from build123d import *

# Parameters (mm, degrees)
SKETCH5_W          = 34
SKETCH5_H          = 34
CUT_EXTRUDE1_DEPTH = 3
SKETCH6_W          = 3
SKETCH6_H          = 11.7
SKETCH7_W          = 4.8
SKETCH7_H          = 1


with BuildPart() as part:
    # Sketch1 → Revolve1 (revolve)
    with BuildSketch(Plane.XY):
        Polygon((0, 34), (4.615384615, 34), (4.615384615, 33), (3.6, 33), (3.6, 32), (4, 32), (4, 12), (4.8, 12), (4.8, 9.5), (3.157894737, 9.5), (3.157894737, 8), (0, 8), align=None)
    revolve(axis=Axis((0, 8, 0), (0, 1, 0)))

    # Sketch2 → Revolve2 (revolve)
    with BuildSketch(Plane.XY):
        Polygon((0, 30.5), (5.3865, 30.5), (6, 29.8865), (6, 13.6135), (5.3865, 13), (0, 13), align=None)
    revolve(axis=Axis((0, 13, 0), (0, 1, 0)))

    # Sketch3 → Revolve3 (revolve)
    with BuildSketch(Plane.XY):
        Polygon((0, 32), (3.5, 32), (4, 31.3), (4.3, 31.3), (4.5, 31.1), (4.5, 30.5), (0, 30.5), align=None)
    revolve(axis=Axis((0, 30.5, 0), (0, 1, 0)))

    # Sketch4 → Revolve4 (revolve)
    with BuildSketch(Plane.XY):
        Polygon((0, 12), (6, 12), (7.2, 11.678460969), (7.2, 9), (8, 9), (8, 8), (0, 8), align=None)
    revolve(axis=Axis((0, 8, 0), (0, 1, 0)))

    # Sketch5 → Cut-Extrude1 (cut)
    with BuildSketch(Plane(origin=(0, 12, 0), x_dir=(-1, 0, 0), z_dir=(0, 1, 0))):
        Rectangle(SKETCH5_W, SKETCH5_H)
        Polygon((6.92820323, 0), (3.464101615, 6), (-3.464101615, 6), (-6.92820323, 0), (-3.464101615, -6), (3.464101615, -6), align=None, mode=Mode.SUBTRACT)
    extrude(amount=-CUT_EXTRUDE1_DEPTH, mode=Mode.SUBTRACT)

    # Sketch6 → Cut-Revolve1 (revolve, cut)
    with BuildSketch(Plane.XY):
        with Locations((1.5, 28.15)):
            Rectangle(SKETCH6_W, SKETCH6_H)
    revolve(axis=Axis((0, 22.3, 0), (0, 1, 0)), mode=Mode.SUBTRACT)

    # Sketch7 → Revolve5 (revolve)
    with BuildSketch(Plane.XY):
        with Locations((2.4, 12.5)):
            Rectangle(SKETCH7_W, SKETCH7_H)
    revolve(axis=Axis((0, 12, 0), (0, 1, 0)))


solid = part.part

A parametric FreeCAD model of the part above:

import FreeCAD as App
import Part
import Sketcher
from FreeCAD import Vector
Q = App.Units.Quantity


def add_polygon(sketch, points):
    """Adds a closed chain of lines whose ends are joined by coincident constraints."""
    first, n = sketch.GeometryCount, len(points)
    for a, b in zip(points, points[1:] + points[:1]):
        sketch.addGeometry(Part.LineSegment(App.Vector(*a, 0), App.Vector(*b, 0)), False)
    for i in range(n):
        sketch.addConstraint(Sketcher.Constraint("Coincident", first + i, 2, first + (i + 1) % n, 1))

doc = App.newDocument("Part")
params = doc.addObject("Spreadsheet::Sheet", "Params")
for row, (alias, value) in enumerate([
    ("sketch1_height", "26 mm"),
    ("sketch1_height2", "20 mm"),
    ("sketch1_height3", "1 mm"),
    ("sketch1_width", "0.8 mm"),
    ("sketch1_width2", "0.4 mm"),
    ("revolution_angle", "360 deg"),
    ("sketch2_height", "17.5 mm"),
    ("revolution2_angle", "360 deg"),
    ("sketch3_width", "3.5 mm"),
    ("sketch3_width2", "4.5 mm"),
    ("sketch3_width3", "0.3 mm"),
    ("sketch3_height", "1.5 mm"),
    ("sketch3_height2", "0.6 mm"),
    ("revolution3_angle", "360 deg"),
    ("sketch4_width", "6 mm"),
    ("sketch4_width2", "8 mm"),
    ("sketch4_height", "4 mm"),
    ("sketch4_height2", "1 mm"),
    ("sketch4_width3", "0.8 mm"),
    ("revolution4_angle", "360 deg"),
    ("sketch5_width", "34 mm"),
    ("pocket1_length", "3 mm"),
    ("sketch6_width", "3 mm"),
    ("sketch6_height", "11.7 mm"),
    ("groove_angle", "360 deg"),
    ("sketch7_height", "1 mm"),
    ("sketch7_width", "4.8 mm"),
    ("revolution5_angle", "360 deg"),
], start=1):
    params.set(f"A{row}", alias)
    params.set(f"B{row}", "=" + value)
    params.setAlias(f"B{row}", alias)

body = doc.addObject("PartDesign::Body", "Body")

# Sketch on XY plane
sketch1 = body.newObject("Sketcher::SketchObject", "Sketch")
sketch1.AttachmentSupport = (doc.getObject("XY_Plane"), [""])
sketch1.MapMode = "FlatFace"
add_polygon(sketch1, [(4.615385, 34), (0, 34), (0, 8), (3.157895, 8), (3.157895, 9.5), (4.8, 9.5), (4.8, 12), (4, 12), (4, 32), (3.6, 32), (3.6, 33), (4.615385, 33)])  # lines 0-11
sketch1.addConstraint([
    Sketcher.Constraint("Horizontal", 0),
    Sketcher.Constraint("Vertical", 1),
    Sketcher.Constraint("Horizontal", 2),
    Sketcher.Constraint("Vertical", 3),
    Sketcher.Constraint("Horizontal", 4),
    Sketcher.Constraint("Vertical", 5),
    Sketcher.Constraint("Horizontal", 6),
    Sketcher.Constraint("Vertical", 7),
    Sketcher.Constraint("Horizontal", 8),
    Sketcher.Constraint("Vertical", 9),
    Sketcher.Constraint("Horizontal", 10),
    Sketcher.Constraint("Vertical", 11),
    Sketcher.Constraint("PointOnObject", 0, 2, -2),
    Sketcher.Constraint("Equal", 9, 11),
    Sketcher.Constraint("DistanceY", 1, 2, 1, 1, 26.0),
    Sketcher.Constraint("DistanceY", 7, 1, 7, 2, 20.0),
    Sketcher.Constraint("DistanceY", 9, 1, 9, 2, 1.0),
    Sketcher.Constraint("DistanceX", 6, 2, 6, 1, 0.8),
    Sketcher.Constraint("DistanceX", 8, 2, 8, 1, 0.4),
    Sketcher.Constraint("DistanceY", 3, 1, 3, 2, 1.5),
    Sketcher.Constraint("DistanceY", -1, 1, 0, 2, 34.0),
    Sketcher.Constraint("DistanceX", -1, 1, 6, 2, 4.0),
    Sketcher.Constraint("DistanceX", 0, 2, 0, 1, 4.615385),
    Sketcher.Constraint("DistanceX", 2, 1, 2, 2, 3.157895),
])
sketch1.setExpression("Constraints[26]", "Params.sketch1_height")
sketch1.setExpression("Constraints[27]", "Params.sketch1_height2")
sketch1.setExpression("Constraints[28]", "Params.sketch1_height3")
sketch1.setExpression("Constraints[29]", "Params.sketch1_width")
sketch1.setExpression("Constraints[30]", "Params.sketch1_width2")
revolution = body.newObject("PartDesign::Revolution", "Revolution")
revolution.Profile = sketch1
revolution.ReferenceAxis = (sketch1, ["V_Axis"])
revolution.setExpression("Angle", "Params.revolution_angle")

# Sketch on XY plane
sketch2 = body.newObject("Sketcher::SketchObject", "Sketch001")
sketch2.AttachmentSupport = (doc.getObject("XY_Plane"), [""])
sketch2.MapMode = "FlatFace"
add_polygon(sketch2, [(5.3865, 30.5), (0, 30.5), (0, 13), (5.3865, 13), (6, 13.6135), (6, 29.8865)])  # lines 0-5
sketch2.addConstraint([
    Sketcher.Constraint("Horizontal", 0),
    Sketcher.Constraint("Vertical", 1),
    Sketcher.Constraint("Horizontal", 2),
    Sketcher.Constraint("Vertical", 4),
    Sketcher.Constraint("PointOnObject", 0, 2, -2),
    Sketcher.Constraint("Perpendicular", 3, 5),
    Sketcher.Constraint("Vertical", 2, 2, 5, 2),
    Sketcher.Constraint("Equal", 3, 5),
    Sketcher.Constraint("DistanceY", 1, 2, 1, 1, 17.5),
    Sketcher.Constraint("DistanceY", -1, 1, 1, 2, 13.0),
    Sketcher.Constraint("DistanceX", -1, 1, 3, 2, 6.0),
    Sketcher.Constraint("DistanceY", 4, 1, 4, 2, 16.273),
])
sketch2.setExpression("Constraints[14]", "Params.sketch2_height")
revolution2 = body.newObject("PartDesign::Revolution", "Revolution001")
revolution2.Profile = sketch2
revolution2.ReferenceAxis = (sketch2, ["V_Axis"])
revolution2.setExpression("Angle", "Params.revolution2_angle")

# Sketch on XY plane
sketch3 = body.newObject("Sketcher::SketchObject", "Sketch002")
sketch3.AttachmentSupport = (doc.getObject("XY_Plane"), [""])
sketch3.MapMode = "FlatFace"
add_polygon(sketch3, [(3.5, 32), (0, 32), (0, 30.5), (4.5, 30.5), (4.5, 31.1), (4.3, 31.3), (4, 31.3)])  # lines 0-6
sketch3.addConstraint([
    Sketcher.Constraint("Horizontal", 0),
    Sketcher.Constraint("Vertical", 1),
    Sketcher.Constraint("Horizontal", 2),
    Sketcher.Constraint("Vertical", 3),
    Sketcher.Constraint("Horizontal", 5),
    Sketcher.Constraint("PointOnObject", 0, 2, -2),
    Sketcher.Constraint("Angle", 4, Q("135 deg")),
    Sketcher.Constraint("DistanceX", 0, 2, 0, 1, 3.5),
    Sketcher.Constraint("DistanceX", 2, 1, 2, 2, 4.5),
    Sketcher.Constraint("DistanceX", 5, 2, 5, 1, 0.3),
    Sketcher.Constraint("DistanceY", 1, 2, 1, 1, 1.5),
    Sketcher.Constraint("DistanceY", 3, 1, 3, 2, 0.6),
    Sketcher.Constraint("DistanceY", -1, 1, 0, 2, 32.0),
    Sketcher.Constraint("DistanceX", -1, 1, 5, 2, 4.0),
])
sketch3.setExpression("Constraints[14]", "Params.sketch3_width")
sketch3.setExpression("Constraints[15]", "Params.sketch3_width2")
sketch3.setExpression("Constraints[16]", "Params.sketch3_width3")
sketch3.setExpression("Constraints[17]", "Params.sketch3_height")
sketch3.setExpression("Constraints[18]", "Params.sketch3_height2")
revolution3 = body.newObject("PartDesign::Revolution", "Revolution002")
revolution3.Profile = sketch3
revolution3.ReferenceAxis = (sketch3, ["V_Axis"])
revolution3.setExpression("Angle", "Params.revolution3_angle")

# Sketch on XY plane
sketch4 = body.newObject("Sketcher::SketchObject", "Sketch003")
sketch4.AttachmentSupport = (doc.getObject("XY_Plane"), [""])
sketch4.MapMode = "FlatFace"
add_polygon(sketch4, [(6, 12), (0, 12), (0, 8), (8, 8), (8, 9), (7.2, 9), (7.2, 11.678461)])  # lines 0-6
sketch4.addConstraint([
    Sketcher.Constraint("Horizontal", 0),
    Sketcher.Constraint("Vertical", 1),
    Sketcher.Constraint("Horizontal", 2),
    Sketcher.Constraint("Vertical", 3),
    Sketcher.Constraint("Horizontal", 4),
    Sketcher.Constraint("Vertical", 5),
    Sketcher.Constraint("PointOnObject", 0, 2, -2),
    Sketcher.Constraint("DistanceX", 0, 2, 0, 1, 6.0),
    Sketcher.Constraint("DistanceX", 2, 1, 2, 2, 8.0),
    Sketcher.Constraint("DistanceY", 1, 2, 1, 1, 4.0),
    Sketcher.Constraint("DistanceY", 3, 1, 3, 2, 1.0),
    Sketcher.Constraint("Angle", 6, Q("165 deg")),
    Sketcher.Constraint("DistanceX", 4, 2, 4, 1, 0.8),
    Sketcher.Constraint("DistanceY", -1, 1, 0, 2, 12.0),
])
sketch4.setExpression("Constraints[14]", "Params.sketch4_width")
sketch4.setExpression("Constraints[15]", "Params.sketch4_width2")
sketch4.setExpression("Constraints[16]", "Params.sketch4_height")
sketch4.setExpression("Constraints[17]", "Params.sketch4_height2")
sketch4.setExpression("Constraints[19]", "Params.sketch4_width3")
revolution4 = body.newObject("PartDesign::Revolution", "Revolution003")
revolution4.Profile = sketch4
revolution4.ReferenceAxis = (sketch4, ["V_Axis"])
revolution4.setExpression("Angle", "Params.revolution4_angle")

# Sketch on XZ plane
sketch5 = body.newObject("Sketcher::SketchObject", "Sketch004")
sketch5.AttachmentSupport = (doc.getObject("XZ_Plane"), [""])
sketch5.MapMode = "FlatFace"
sketch5.AttachmentOffset = App.Placement(Vector(0, 0, -12), App.Rotation())
add_polygon(sketch5, [(17, 17), (17, -17), (-17, -17), (-17, 17)])  # lines 0-3
add_polygon(sketch5, [(-3.464102, 6), (-6.928203, 0), (-3.464102, -6), (3.464102, -6), (6.928203, 0), (3.464102, 6)])  # lines 4-9
sketch5.addConstraint([
    Sketcher.Constraint("Vertical", 0),
    Sketcher.Constraint("Horizontal", 1),
    Sketcher.Constraint("Vertical", 2),
    Sketcher.Constraint("Horizontal", 3),
    Sketcher.Constraint("Horizontal", 6),
    Sketcher.Constraint("Horizontal", 9),
    Sketcher.Constraint("Symmetric", 0, 2, 2, 2, -1, 1),
    Sketcher.Constraint("Symmetric", 4, 2, 7, 2, -1, 1),
    Sketcher.Constraint("Symmetric", 5, 2, 8, 2, -1, 1),
    Sketcher.Constraint("PointOnObject", 4, 2, -1),
    Sketcher.Constraint("Parallel", 4, 7),
    Sketcher.Constraint("Vertical", 6, 2, 8, 2),
    Sketcher.Constraint("Equal", 3, 0),
    Sketcher.Constraint("DistanceX", 1, 2, 1, 1, 34.0),
    Sketcher.Constraint("Angle", 4, Q("-120 deg")),
    Sketcher.Constraint("DistanceY", 5, 2, -1, 1, 6.0),
    Sketcher.Constraint("DistanceX", 5, 2, -1, 1, 3.464102),
])
sketch5.setExpression("Constraints[23]", "Params.sketch5_width")
pocket1 = body.newObject("PartDesign::Pocket", "Pocket")
pocket1.Profile = sketch5
pocket1.setExpression("Length", "Params.pocket1_length")
pocket1.Reversed = True

# Sketch on XY plane
sketch6 = body.newObject("Sketcher::SketchObject", "Sketch005")
sketch6.AttachmentSupport = (doc.getObject("XY_Plane"), [""])
sketch6.MapMode = "FlatFace"
add_polygon(sketch6, [(0, 34), (0, 22.3), (3, 22.3), (3, 34)])  # lines 0-3
sketch6.addConstraint([
    Sketcher.Constraint("Vertical", 0),
    Sketcher.Constraint("Horizontal", 1),
    Sketcher.Constraint("Vertical", 2),
    Sketcher.Constraint("Horizontal", 3),
    Sketcher.Constraint("PointOnObject", 0, 2, -2),
    Sketcher.Constraint("DistanceX", 1, 1, 1, 2, 3.0),
    Sketcher.Constraint("DistanceY", 0, 2, 0, 1, 11.7),
    Sketcher.Constraint("DistanceY", -1, 1, 2, 2, 34.0),
])
sketch6.setExpression("Constraints[9]", "Params.sketch6_width")
sketch6.setExpression("Constraints[10]", "Params.sketch6_height")
groove = body.newObject("PartDesign::Groove", "Groove")
groove.Profile = sketch6
groove.ReferenceAxis = (sketch6, ["V_Axis"])
groove.setExpression("Angle", "Params.groove_angle")

# Sketch on XY plane
sketch7 = body.newObject("Sketcher::SketchObject", "Sketch006")
sketch7.AttachmentSupport = (doc.getObject("XY_Plane"), [""])
sketch7.MapMode = "FlatFace"
add_polygon(sketch7, [(0, 13), (0, 12), (4.8, 12), (4.8, 13)])  # lines 0-3
sketch7.addConstraint([
    Sketcher.Constraint("Vertical", 0),
    Sketcher.Constraint("Horizontal", 1),
    Sketcher.Constraint("Vertical", 2),
    Sketcher.Constraint("Horizontal", 3),
    Sketcher.Constraint("PointOnObject", 0, 2, -2),
    Sketcher.Constraint("DistanceY", 0, 2, 0, 1, 1.0),
    Sketcher.Constraint("DistanceX", 1, 1, 1, 2, 4.8),
    Sketcher.Constraint("DistanceY", -1, 1, 0, 2, 12.0),
])
sketch7.setExpression("Constraints[9]", "Params.sketch7_height")
sketch7.setExpression("Constraints[10]", "Params.sketch7_width")
revolution5 = body.newObject("PartDesign::Revolution", "Revolution004")
revolution5.Profile = sketch7
revolution5.ReferenceAxis = (sketch7, ["V_Axis"])
revolution5.setExpression("Angle", "Params.revolution5_angle")

doc.recompute()
